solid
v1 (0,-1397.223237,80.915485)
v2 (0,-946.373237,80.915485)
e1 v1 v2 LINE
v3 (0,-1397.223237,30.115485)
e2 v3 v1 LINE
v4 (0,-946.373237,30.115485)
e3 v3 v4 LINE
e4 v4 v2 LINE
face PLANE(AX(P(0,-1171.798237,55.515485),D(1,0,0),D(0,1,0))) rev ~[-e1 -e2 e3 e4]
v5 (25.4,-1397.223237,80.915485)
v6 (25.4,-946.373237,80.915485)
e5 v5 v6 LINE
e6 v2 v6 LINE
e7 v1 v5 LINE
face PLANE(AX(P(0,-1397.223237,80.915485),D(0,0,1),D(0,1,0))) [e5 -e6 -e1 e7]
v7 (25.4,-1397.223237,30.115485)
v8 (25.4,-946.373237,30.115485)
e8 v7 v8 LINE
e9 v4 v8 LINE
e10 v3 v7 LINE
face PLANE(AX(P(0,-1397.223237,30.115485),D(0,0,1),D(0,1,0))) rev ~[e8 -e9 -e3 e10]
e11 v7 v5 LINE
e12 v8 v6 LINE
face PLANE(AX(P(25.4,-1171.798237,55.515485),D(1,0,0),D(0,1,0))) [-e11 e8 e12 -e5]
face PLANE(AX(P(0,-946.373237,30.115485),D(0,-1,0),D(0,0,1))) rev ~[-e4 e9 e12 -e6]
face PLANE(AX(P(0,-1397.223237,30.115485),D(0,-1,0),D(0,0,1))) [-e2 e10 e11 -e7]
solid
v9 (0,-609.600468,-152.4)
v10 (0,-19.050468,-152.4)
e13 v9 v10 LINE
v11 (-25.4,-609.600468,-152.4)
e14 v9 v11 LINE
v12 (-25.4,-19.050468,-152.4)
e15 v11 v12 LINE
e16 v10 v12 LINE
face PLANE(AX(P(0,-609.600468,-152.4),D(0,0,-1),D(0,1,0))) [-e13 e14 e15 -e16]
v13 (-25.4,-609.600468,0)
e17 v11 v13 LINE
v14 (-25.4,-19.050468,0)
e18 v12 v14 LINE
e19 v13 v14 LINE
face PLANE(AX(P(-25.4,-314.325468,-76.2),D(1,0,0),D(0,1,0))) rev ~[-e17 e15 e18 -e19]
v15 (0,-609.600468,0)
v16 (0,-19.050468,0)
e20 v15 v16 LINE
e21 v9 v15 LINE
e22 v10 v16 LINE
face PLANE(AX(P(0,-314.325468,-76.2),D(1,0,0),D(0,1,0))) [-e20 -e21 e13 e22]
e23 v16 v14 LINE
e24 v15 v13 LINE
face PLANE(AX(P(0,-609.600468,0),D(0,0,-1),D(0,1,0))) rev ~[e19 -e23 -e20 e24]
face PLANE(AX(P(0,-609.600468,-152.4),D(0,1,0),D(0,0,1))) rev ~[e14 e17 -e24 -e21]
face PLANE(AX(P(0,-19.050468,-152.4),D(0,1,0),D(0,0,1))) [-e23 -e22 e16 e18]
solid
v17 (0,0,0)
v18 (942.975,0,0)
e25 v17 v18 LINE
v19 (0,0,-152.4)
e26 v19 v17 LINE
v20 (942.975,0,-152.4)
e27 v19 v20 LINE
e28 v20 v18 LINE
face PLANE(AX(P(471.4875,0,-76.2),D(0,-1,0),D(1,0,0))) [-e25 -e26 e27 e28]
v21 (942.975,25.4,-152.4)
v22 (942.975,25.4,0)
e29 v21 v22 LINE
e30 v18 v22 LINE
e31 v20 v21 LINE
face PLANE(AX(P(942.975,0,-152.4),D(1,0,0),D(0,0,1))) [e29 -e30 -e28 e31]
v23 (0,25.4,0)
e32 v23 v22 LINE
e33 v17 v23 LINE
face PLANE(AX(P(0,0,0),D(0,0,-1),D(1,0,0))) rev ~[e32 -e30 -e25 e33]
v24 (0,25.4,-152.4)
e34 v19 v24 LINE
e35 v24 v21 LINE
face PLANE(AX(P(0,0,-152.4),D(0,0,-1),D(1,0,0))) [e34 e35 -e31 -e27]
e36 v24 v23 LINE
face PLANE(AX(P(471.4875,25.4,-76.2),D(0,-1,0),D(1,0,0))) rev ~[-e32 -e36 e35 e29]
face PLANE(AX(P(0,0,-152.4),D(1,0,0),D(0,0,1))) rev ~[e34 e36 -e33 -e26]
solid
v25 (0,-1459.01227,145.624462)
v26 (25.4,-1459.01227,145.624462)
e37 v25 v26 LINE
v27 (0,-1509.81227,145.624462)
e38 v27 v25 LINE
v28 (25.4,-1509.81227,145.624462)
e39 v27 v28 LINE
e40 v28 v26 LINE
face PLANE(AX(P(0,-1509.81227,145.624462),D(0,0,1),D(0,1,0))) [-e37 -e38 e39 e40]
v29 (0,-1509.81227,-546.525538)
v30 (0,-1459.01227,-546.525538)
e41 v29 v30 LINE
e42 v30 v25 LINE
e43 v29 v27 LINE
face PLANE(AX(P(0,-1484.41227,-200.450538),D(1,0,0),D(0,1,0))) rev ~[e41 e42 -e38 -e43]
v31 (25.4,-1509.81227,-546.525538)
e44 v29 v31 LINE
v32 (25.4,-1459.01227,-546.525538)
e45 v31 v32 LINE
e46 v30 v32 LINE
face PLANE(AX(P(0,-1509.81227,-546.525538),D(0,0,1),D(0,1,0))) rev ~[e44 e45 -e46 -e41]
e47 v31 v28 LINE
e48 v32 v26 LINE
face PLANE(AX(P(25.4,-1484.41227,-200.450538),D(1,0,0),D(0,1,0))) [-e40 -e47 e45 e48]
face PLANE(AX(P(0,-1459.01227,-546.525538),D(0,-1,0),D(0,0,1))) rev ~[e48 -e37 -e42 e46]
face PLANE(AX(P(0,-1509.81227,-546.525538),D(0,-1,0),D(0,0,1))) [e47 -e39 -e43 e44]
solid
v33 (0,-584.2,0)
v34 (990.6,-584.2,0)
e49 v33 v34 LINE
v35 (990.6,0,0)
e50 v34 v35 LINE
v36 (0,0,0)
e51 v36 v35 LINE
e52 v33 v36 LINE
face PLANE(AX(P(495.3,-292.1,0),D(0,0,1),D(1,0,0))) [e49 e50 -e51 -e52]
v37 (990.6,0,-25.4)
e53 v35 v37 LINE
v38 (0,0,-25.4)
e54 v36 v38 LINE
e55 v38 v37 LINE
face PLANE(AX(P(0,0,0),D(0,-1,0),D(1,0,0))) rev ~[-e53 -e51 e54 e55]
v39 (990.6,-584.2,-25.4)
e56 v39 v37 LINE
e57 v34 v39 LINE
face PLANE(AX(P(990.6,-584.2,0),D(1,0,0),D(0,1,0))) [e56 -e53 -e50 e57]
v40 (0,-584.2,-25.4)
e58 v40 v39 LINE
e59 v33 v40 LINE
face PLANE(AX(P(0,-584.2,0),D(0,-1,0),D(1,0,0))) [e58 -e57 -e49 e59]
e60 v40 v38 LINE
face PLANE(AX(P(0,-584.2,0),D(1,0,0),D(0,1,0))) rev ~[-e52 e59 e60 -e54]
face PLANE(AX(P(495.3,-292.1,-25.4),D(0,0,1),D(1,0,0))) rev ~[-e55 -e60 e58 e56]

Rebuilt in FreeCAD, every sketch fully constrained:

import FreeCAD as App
import Part
import Sketcher
Q = App.Units.Quantity

doc = App.newDocument("Part")
body = doc.addObject("PartDesign::Body", "Body")

sketch1 = doc.addObject("Sketcher::SketchObject", "Sketch")
body.addObject(sketch1)
sketch1.AttachmentSupport = (doc.XZ_Plane, [""])
sketch1.MapMode = "FlatFace"
sketch1.addGeometry(Part.LineSegment(App.Vector(0, 0, 0), App.Vector(0, -152, 0)), False)
sketch1.addGeometry(Part.LineSegment(App.Vector(0, -152, 0), App.Vector(943, -152, 0)), False)
sketch1.addGeometry(Part.LineSegment(App.Vector(943, -152, 0), App.Vector(943, 0, 0)), False)
sketch1.addGeometry(Part.LineSegment(App.Vector(943, 0, 0), App.Vector(0, 0, 0)), False)
sketch1.addConstraint(Sketcher.Constraint("Coincident", 0, 2, 1, 1))
sketch1.addConstraint(Sketcher.Constraint("Coincident", 1, 2, 2, 1))
sketch1.addConstraint(Sketcher.Constraint("Coincident", 2, 2, 3, 1))
sketch1.addConstraint(Sketcher.Constraint("Coincident", 3, 2, 0, 1))
sketch1.addConstraint(Sketcher.Constraint("Vertical", 0))
sketch1.addConstraint(Sketcher.Constraint("Horizontal", 1))
sketch1.addConstraint(Sketcher.Constraint("Vertical", 2))
sketch1.addConstraint(Sketcher.Constraint("Horizontal", 3))
sketch1.addConstraint(Sketcher.Constraint("Coincident", 3, 2, -1, 1))
sketch1.addConstraint(Sketcher.Constraint("DistanceY", 0, 2, 0, 1, Q("6 in")))
sketch1.addConstraint(Sketcher.Constraint("DistanceX", 1, 1, 1, 2, Q("37.125 in")))
pad1 = doc.addObject("PartDesign::Pad", "Pad")
body.addObject(pad1)
pad1.Profile = sketch1
pad1.Length = Q("1 in")
pad1.Reversed = True
body2 = doc.addObject("PartDesign::Body", "Body001")

sketch2 = doc.addObject("Sketcher::SketchObject", "Sketch001")
body2.addObject(sketch2)
sketch2.AttachmentSupport = (doc.getObject("XY_Plane001"), [""])
sketch2.MapMode = "FlatFace"
sketch2.addGeometry(Part.LineSegment(App.Vector(0, 0, 0), App.Vector(0, -584, 0)), False)
sketch2.addGeometry(Part.LineSegment(App.Vector(0, -584, 0), App.Vector(991, -584, 0)), False)
sketch2.addGeometry(Part.LineSegment(App.Vector(991, -584, 0), App.Vector(991, 0, 0)), False)
sketch2.addGeometry(Part.LineSegment(App.Vector(991, 0, 0), App.Vector(0, 0, 0)), False)
sketch2.addConstraint(Sketcher.Constraint("Coincident", 0, 2, 1, 1))
sketch2.addConstraint(Sketcher.Constraint("Coincident", 1, 2, 2, 1))
sketch2.addConstraint(Sketcher.Constraint("Coincident", 2, 2, 3, 1))
sketch2.addConstraint(Sketcher.Constraint("Coincident", 3, 2, 0, 1))
sketch2.addConstraint(Sketcher.Constraint("Vertical", 0))
sketch2.addConstraint(Sketcher.Constraint("Horizontal", 1))
sketch2.addConstraint(Sketcher.Constraint("Vertical", 2))
sketch2.addConstraint(Sketcher.Constraint("Horizontal", 3))
sketch2.addConstraint(Sketcher.Constraint("Coincident", 3, 2, -1, 1))
sketch2.addConstraint(Sketcher.Constraint("DistanceX", 1, 1, 1, 2, Q("39 in")))
sketch2.addConstraint(Sketcher.Constraint("DistanceY", 0, 2, 0, 1, Q("23 in")))
pad2 = doc.addObject("PartDesign::Pad", "Pad001")
body2.addObject(pad2)
pad2.Profile = sketch2
pad2.Length = Q("1 in")
pad2.Reversed = True
body3 = doc.addObject("PartDesign::Body", "Body002")

sketch3 = doc.addObject("Sketcher::SketchObject", "Sketch002")
body3.addObject(sketch3)
sketch3.AttachmentSupport = (doc.getObject("YZ_Plane002"), [""])
sketch3.MapMode = "FlatFace"
sketch3.addGeometry(Part.LineSegment(App.Vector(-610, 0, 0), App.Vector(-610, -152, 0)), False)
sketch3.addGeometry(Part.LineSegment(App.Vector(-610, -152, 0), App.Vector(-19, -152, 0)), False)
sketch3.addGeometry(Part.LineSegment(App.Vector(-19, -152, 0), App.Vector(-19, 0, 0)), False)
sketch3.addGeometry(Part.LineSegment(App.Vector(-19, 0, 0), App.Vector(-610, 0, 0)), False)
sketch3.addConstraint(Sketcher.Constraint("Coincident", 0, 2, 1, 1))
sketch3.addConstraint(Sketcher.Constraint("Coincident", 1, 2, 2, 1))
sketch3.addConstraint(Sketcher.Constraint("Coincident", 2, 2, 3, 1))
sketch3.addConstraint(Sketcher.Constraint("Coincident", 3, 2, 0, 1))
sketch3.addConstraint(Sketcher.Constraint("Vertical", 0))
sketch3.addConstraint(Sketcher.Constraint("Horizontal", 1))
sketch3.addConstraint(Sketcher.Constraint("Vertical", 2))
sketch3.addConstraint(Sketcher.Constraint("Horizontal", 3))
sketch3.addConstraint(Sketcher.Constraint("PointOnObject", 2, 2, -1))
sketch3.addConstraint(Sketcher.Constraint("DistanceY", 0, 2, 0, 1, Q("6 in")))
sketch3.addConstraint(Sketcher.Constraint("DistanceX", 1, 1, 1, 2, Q("23.25 in")))
sketch3.addConstraint(Sketcher.Constraint("DistanceX", 0, 2, -1, 1, 609.600468))
pad3 = doc.addObject("PartDesign::Pad", "Pad002")
body3.addObject(pad3)
pad3.Profile = sketch3
pad3.Length = Q("1 in")
pad3.Reversed = True
body4 = doc.addObject("PartDesign::Body", "Body003")

sketch4 = doc.addObject("Sketcher::SketchObject", "Sketch003")
body4.addObject(sketch4)
sketch4.AttachmentSupport = (doc.getObject("YZ_Plane003"), [""])
sketch4.MapMode = "FlatFace"
sketch4.addGeometry(Part.LineSegment(App.Vector(-1510, 146, 0), App.Vector(-1510, -547, 0)), False)
sketch4.addGeometry(Part.LineSegment(App.Vector(-1510, -547, 0), App.Vector(-1459, -547, 0)), False)
sketch4.addGeometry(Part.LineSegment(App.Vector(-1459, -547, 0), App.Vector(-1459, 146, 0)), False)
sketch4.addGeometry(Part.LineSegment(App.Vector(-1459, 146, 0), App.Vector(-1510, 146, 0)), False)
sketch4.addConstraint(Sketcher.Constraint("Coincident", 0, 2, 1, 1))
sketch4.addConstraint(Sketcher.Constraint("Coincident", 1, 2, 2, 1))
sketch4.addConstraint(Sketcher.Constraint("Coincident", 2, 2, 3, 1))
sketch4.addConstraint(Sketcher.Constraint("Coincident", 3, 2, 0, 1))
sketch4.addConstraint(Sketcher.Constraint("Vertical", 0))
sketch4.addConstraint(Sketcher.Constraint("Horizontal", 1))
sketch4.addConstraint(Sketcher.Constraint("Vertical", 2))
sketch4.addConstraint(Sketcher.Constraint("Horizontal", 3))
sketch4.addConstraint(Sketcher.Constraint("DistanceX", 1, 1, 1, 2, Q("2 in")))
sketch4.addConstraint(Sketcher.Constraint("DistanceY", 0, 2, 0, 1, Q("27.25 in")))
sketch4.addConstraint(Sketcher.Constraint("DistanceX", 0, 2, -1, 1, 1509.81227))
sketch4.addConstraint(Sketcher.Constraint("DistanceY", 0, 2, -1, 1, 546.525538))
pad4 = doc.addObject("PartDesign::Pad", "Pad003")
body4.addObject(pad4)
pad4.Profile = sketch4
pad4.Length = Q("1 in")
body5 = doc.addObject("PartDesign::Body", "Body004")

sketch5 = doc.addObject("Sketcher::SketchObject", "Sketch004")
body5.addObject(sketch5)
sketch5.AttachmentSupport = (doc.getObject("YZ_Plane004"), [""])
sketch5.MapMode = "FlatFace"
sketch5.addGeometry(Part.LineSegment(App.Vector(-1397, 81, 0), App.Vector(-1397, 30, 0)), False)
sketch5.addGeometry(Part.LineSegment(App.Vector(-1397, 30, 0), App.Vector(-946, 30, 0)), False)
sketch5.addGeometry(Part.LineSegment(App.Vector(-946, 30, 0), App.Vector(-946, 81, 0)), False)
sketch5.addGeometry(Part.LineSegment(App.Vector(-946, 81, 0), App.Vector(-1397, 81, 0)), False)
sketch5.addConstraint(Sketcher.Constraint("Coincident", 0, 2, 1, 1))
sketch5.addConstraint(Sketcher.Constraint("Coincident", 1, 2, 2, 1))
sketch5.addConstraint(Sketcher.Constraint("Coincident", 2, 2, 3, 1))
sketch5.addConstraint(Sketcher.Constraint("Coincident", 3, 2, 0, 1))
sketch5.addConstraint(Sketcher.Constraint("Vertical", 0))
sketch5.addConstraint(Sketcher.Constraint("Horizontal", 1))
sketch5.addConstraint(Sketcher.Constraint("Vertical", 2))
sketch5.addConstraint(Sketcher.Constraint("Horizontal", 3))
sketch5.addConstraint(Sketcher.Constraint("DistanceY", 0, 2, 0, 1, Q("2 in")))
sketch5.addConstraint(Sketcher.Constraint("DistanceX", 1, 1, 1, 2, Q("17.75 in")))
sketch5.addConstraint(Sketcher.Constraint("DistanceX", 0, 2, -1, 1, 1397.223237))
sketch5.addConstraint(Sketcher.Constraint("DistanceY", -1, 1, 0, 2, 30.115485))
pad5 = doc.addObject("PartDesign::Pad", "Pad004")
body5.addObject(pad5)
pad5.Profile = sketch5
pad5.Length = Q("1 in")

doc.recompute()
